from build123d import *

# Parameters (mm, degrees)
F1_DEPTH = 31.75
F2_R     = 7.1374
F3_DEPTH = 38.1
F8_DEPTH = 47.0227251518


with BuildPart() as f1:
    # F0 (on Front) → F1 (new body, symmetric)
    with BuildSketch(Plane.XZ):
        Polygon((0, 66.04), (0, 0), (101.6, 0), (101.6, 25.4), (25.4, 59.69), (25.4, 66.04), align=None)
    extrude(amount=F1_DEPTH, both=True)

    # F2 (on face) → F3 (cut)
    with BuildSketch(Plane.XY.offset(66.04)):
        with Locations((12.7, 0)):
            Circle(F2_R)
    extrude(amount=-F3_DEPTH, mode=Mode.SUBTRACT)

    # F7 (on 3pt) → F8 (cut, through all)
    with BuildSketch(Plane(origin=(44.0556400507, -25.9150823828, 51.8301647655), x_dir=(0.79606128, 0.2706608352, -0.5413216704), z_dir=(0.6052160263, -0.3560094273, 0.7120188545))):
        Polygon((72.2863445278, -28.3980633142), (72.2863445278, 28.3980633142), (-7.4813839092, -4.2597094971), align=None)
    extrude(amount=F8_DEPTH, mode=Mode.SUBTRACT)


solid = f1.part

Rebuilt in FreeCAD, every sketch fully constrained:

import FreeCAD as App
import Part
import Sketcher
Q = App.Units.Quantity

doc = App.newDocument("Part")
body = doc.addObject("PartDesign::Body", "Body")

# Sketch on XZ plane
sketch1 = body.newObject("Sketcher::SketchObject", "Sketch")
sketch1.AttachmentSupport = (doc.getObject("XZ_Plane"), [""])
sketch1.MapMode = "FlatFace"
sketch1.addGeometry(Part.LineSegment(App.Vector(0, 66.04, 0), App.Vector(0, 0, 0)), False)
sketch1.addGeometry(Part.LineSegment(App.Vector(0, 0, 0), App.Vector(101.6, 0, 0)), False)
sketch1.addGeometry(Part.LineSegment(App.Vector(101.6, 0, 0), App.Vector(101.6, 25.4, 0)), False)
sketch1.addGeometry(Part.LineSegment(App.Vector(101.6, 25.4, 0), App.Vector(25.4, 59.69, 0)), False)
sketch1.addGeometry(Part.LineSegment(App.Vector(25.4, 59.69, 0), App.Vector(25.4, 66.04, 0)), False)
sketch1.addGeometry(Part.LineSegment(App.Vector(25.4, 66.04, 0), App.Vector(0, 66.04, 0)), False)
sketch1.addConstraint(Sketcher.Constraint("Coincident", 0, 2, 1, 1))
sketch1.addConstraint(Sketcher.Constraint("Coincident", 1, 2, 2, 1))
sketch1.addConstraint(Sketcher.Constraint("Coincident", 2, 2, 3, 1))
sketch1.addConstraint(Sketcher.Constraint("Coincident", 3, 2, 4, 1))
sketch1.addConstraint(Sketcher.Constraint("Coincident", 4, 2, 5, 1))
sketch1.addConstraint(Sketcher.Constraint("Coincident", 5, 2, 0, 1))
sketch1.addConstraint(Sketcher.Constraint("Vertical", 0))
sketch1.addConstraint(Sketcher.Constraint("Horizontal", 1))
sketch1.addConstraint(Sketcher.Constraint("Vertical", 2))
sketch1.addConstraint(Sketcher.Constraint("Vertical", 4))
sketch1.addConstraint(Sketcher.Constraint("Horizontal", 5))
sketch1.addConstraint(Sketcher.Constraint("Coincident", 0, 2, -1, 1))
sketch1.addConstraint(Sketcher.Constraint("Equal", 5, 2))
sketch1.addConstraint(Sketcher.Constraint("DistanceX", 1, 1, 1, 2, Q("4 in")))
sketch1.addConstraint(Sketcher.Constraint("DistanceX", 5, 2, 5, 1, Q("1 in")))
sketch1.addConstraint(Sketcher.Constraint("DistanceY", 0, 2, 0, 1, Q("2.6 in")))
sketch1.addConstraint(Sketcher.Constraint("DistanceY", 4, 1, 4, 2, Q("0.25 in")))
pad1 = body.newObject("PartDesign::Pad", "Pad")
pad1.Profile = sketch1
pad1.Length = Q("2.5 in")
pad1.Midplane = True

# Sketch on XY plane
sketch2 = body.newObject("Sketcher::SketchObject", "Sketch001")
sketch2.AttachmentSupport = (doc.getObject("XY_Plane"), [""])
sketch2.MapMode = "FlatFace"
sketch2.AttachmentOffset = App.Placement(App.Vector(0, 0, 2.6 * 25.4), App.Rotation())
sketch2.addGeometry(Part.Circle(App.Vector(12.7, 0, 0), App.Vector(0, 0, 1), 7.1374), False)
sketch2.addConstraint(Sketcher.Constraint("PointOnObject", 0, 3, -1))
sketch2.addConstraint(Sketcher.Constraint("Diameter", 0, Q("0.562 in")))
sketch2.addConstraint(Sketcher.Constraint("DistanceX", -1, 1, 0, 3, Q("0.5 in")))
pocket1 = body.newObject("PartDesign::Pocket", "Pocket")
pocket1.Profile = sketch2
pocket1.Length = Q("1.5 in")

# Sketch on an angled plane
sketch3 = body.newObject("Sketcher::SketchObject", "Sketch002")
sketch3.Placement = App.Placement(App.Vector(44.05564, -25.915082, 51.830165), App.Rotation(App.Vector(0.79606128, 0.270660835, -0.54132167), App.Vector(0, 0.894427191, 0.447213595), App.Vector(0.605216026, -0.356009427, 0.712018855), "ZXY"))
sketch3.addGeometry(Part.LineSegment(App.Vector(72.286344, -28.398063, 0), App.Vector(72.286344, 28.398063, 0)), False)
sketch3.addGeometry(Part.LineSegment(App.Vector(72.286344, 28.398063, 0), App.Vector(-7.481384, -4.259709, 0)), False)
sketch3.addGeometry(Part.LineSegment(App.Vector(-7.481384, -4.259709, 0), App.Vector(72.286344, -28.398063, 0)), False)
sketch3.addConstraint(Sketcher.Constraint("Coincident", 0, 2, 1, 1))
sketch3.addConstraint(Sketcher.Constraint("Coincident", 1, 2, 2, 1))
sketch3.addConstraint(Sketcher.Constraint("Coincident", 2, 2, 0, 1))
sketch3.addConstraint(Sketcher.Constraint("Vertical", 0))
sketch3.addConstraint(Sketcher.Constraint("Distance", 2, Q("83.33997 mm")))
sketch3.addConstraint(Sketcher.Constraint("DistanceY", 0, 1, 0, 2, Q("56.796127 mm")))
sketch3.addConstraint(Sketcher.Constraint("DistanceY", 1, 2, -1, 1, Q("4.259709 mm")))
sketch3.addConstraint(Sketcher.Constraint("DistanceX", 1, 2, 0, 2, Q("79.767728 mm")))
sketch3.addConstraint(Sketcher.Constraint("DistanceX", -1, 1, 0, 2, Q("72.286344 mm")))
pocket2 = body.newObject("PartDesign::Pocket", "Pocket001")
pocket2.Profile = sketch3
pocket2.Type = "ThroughAll"
pocket2.Reversed = True

doc.recompute()
